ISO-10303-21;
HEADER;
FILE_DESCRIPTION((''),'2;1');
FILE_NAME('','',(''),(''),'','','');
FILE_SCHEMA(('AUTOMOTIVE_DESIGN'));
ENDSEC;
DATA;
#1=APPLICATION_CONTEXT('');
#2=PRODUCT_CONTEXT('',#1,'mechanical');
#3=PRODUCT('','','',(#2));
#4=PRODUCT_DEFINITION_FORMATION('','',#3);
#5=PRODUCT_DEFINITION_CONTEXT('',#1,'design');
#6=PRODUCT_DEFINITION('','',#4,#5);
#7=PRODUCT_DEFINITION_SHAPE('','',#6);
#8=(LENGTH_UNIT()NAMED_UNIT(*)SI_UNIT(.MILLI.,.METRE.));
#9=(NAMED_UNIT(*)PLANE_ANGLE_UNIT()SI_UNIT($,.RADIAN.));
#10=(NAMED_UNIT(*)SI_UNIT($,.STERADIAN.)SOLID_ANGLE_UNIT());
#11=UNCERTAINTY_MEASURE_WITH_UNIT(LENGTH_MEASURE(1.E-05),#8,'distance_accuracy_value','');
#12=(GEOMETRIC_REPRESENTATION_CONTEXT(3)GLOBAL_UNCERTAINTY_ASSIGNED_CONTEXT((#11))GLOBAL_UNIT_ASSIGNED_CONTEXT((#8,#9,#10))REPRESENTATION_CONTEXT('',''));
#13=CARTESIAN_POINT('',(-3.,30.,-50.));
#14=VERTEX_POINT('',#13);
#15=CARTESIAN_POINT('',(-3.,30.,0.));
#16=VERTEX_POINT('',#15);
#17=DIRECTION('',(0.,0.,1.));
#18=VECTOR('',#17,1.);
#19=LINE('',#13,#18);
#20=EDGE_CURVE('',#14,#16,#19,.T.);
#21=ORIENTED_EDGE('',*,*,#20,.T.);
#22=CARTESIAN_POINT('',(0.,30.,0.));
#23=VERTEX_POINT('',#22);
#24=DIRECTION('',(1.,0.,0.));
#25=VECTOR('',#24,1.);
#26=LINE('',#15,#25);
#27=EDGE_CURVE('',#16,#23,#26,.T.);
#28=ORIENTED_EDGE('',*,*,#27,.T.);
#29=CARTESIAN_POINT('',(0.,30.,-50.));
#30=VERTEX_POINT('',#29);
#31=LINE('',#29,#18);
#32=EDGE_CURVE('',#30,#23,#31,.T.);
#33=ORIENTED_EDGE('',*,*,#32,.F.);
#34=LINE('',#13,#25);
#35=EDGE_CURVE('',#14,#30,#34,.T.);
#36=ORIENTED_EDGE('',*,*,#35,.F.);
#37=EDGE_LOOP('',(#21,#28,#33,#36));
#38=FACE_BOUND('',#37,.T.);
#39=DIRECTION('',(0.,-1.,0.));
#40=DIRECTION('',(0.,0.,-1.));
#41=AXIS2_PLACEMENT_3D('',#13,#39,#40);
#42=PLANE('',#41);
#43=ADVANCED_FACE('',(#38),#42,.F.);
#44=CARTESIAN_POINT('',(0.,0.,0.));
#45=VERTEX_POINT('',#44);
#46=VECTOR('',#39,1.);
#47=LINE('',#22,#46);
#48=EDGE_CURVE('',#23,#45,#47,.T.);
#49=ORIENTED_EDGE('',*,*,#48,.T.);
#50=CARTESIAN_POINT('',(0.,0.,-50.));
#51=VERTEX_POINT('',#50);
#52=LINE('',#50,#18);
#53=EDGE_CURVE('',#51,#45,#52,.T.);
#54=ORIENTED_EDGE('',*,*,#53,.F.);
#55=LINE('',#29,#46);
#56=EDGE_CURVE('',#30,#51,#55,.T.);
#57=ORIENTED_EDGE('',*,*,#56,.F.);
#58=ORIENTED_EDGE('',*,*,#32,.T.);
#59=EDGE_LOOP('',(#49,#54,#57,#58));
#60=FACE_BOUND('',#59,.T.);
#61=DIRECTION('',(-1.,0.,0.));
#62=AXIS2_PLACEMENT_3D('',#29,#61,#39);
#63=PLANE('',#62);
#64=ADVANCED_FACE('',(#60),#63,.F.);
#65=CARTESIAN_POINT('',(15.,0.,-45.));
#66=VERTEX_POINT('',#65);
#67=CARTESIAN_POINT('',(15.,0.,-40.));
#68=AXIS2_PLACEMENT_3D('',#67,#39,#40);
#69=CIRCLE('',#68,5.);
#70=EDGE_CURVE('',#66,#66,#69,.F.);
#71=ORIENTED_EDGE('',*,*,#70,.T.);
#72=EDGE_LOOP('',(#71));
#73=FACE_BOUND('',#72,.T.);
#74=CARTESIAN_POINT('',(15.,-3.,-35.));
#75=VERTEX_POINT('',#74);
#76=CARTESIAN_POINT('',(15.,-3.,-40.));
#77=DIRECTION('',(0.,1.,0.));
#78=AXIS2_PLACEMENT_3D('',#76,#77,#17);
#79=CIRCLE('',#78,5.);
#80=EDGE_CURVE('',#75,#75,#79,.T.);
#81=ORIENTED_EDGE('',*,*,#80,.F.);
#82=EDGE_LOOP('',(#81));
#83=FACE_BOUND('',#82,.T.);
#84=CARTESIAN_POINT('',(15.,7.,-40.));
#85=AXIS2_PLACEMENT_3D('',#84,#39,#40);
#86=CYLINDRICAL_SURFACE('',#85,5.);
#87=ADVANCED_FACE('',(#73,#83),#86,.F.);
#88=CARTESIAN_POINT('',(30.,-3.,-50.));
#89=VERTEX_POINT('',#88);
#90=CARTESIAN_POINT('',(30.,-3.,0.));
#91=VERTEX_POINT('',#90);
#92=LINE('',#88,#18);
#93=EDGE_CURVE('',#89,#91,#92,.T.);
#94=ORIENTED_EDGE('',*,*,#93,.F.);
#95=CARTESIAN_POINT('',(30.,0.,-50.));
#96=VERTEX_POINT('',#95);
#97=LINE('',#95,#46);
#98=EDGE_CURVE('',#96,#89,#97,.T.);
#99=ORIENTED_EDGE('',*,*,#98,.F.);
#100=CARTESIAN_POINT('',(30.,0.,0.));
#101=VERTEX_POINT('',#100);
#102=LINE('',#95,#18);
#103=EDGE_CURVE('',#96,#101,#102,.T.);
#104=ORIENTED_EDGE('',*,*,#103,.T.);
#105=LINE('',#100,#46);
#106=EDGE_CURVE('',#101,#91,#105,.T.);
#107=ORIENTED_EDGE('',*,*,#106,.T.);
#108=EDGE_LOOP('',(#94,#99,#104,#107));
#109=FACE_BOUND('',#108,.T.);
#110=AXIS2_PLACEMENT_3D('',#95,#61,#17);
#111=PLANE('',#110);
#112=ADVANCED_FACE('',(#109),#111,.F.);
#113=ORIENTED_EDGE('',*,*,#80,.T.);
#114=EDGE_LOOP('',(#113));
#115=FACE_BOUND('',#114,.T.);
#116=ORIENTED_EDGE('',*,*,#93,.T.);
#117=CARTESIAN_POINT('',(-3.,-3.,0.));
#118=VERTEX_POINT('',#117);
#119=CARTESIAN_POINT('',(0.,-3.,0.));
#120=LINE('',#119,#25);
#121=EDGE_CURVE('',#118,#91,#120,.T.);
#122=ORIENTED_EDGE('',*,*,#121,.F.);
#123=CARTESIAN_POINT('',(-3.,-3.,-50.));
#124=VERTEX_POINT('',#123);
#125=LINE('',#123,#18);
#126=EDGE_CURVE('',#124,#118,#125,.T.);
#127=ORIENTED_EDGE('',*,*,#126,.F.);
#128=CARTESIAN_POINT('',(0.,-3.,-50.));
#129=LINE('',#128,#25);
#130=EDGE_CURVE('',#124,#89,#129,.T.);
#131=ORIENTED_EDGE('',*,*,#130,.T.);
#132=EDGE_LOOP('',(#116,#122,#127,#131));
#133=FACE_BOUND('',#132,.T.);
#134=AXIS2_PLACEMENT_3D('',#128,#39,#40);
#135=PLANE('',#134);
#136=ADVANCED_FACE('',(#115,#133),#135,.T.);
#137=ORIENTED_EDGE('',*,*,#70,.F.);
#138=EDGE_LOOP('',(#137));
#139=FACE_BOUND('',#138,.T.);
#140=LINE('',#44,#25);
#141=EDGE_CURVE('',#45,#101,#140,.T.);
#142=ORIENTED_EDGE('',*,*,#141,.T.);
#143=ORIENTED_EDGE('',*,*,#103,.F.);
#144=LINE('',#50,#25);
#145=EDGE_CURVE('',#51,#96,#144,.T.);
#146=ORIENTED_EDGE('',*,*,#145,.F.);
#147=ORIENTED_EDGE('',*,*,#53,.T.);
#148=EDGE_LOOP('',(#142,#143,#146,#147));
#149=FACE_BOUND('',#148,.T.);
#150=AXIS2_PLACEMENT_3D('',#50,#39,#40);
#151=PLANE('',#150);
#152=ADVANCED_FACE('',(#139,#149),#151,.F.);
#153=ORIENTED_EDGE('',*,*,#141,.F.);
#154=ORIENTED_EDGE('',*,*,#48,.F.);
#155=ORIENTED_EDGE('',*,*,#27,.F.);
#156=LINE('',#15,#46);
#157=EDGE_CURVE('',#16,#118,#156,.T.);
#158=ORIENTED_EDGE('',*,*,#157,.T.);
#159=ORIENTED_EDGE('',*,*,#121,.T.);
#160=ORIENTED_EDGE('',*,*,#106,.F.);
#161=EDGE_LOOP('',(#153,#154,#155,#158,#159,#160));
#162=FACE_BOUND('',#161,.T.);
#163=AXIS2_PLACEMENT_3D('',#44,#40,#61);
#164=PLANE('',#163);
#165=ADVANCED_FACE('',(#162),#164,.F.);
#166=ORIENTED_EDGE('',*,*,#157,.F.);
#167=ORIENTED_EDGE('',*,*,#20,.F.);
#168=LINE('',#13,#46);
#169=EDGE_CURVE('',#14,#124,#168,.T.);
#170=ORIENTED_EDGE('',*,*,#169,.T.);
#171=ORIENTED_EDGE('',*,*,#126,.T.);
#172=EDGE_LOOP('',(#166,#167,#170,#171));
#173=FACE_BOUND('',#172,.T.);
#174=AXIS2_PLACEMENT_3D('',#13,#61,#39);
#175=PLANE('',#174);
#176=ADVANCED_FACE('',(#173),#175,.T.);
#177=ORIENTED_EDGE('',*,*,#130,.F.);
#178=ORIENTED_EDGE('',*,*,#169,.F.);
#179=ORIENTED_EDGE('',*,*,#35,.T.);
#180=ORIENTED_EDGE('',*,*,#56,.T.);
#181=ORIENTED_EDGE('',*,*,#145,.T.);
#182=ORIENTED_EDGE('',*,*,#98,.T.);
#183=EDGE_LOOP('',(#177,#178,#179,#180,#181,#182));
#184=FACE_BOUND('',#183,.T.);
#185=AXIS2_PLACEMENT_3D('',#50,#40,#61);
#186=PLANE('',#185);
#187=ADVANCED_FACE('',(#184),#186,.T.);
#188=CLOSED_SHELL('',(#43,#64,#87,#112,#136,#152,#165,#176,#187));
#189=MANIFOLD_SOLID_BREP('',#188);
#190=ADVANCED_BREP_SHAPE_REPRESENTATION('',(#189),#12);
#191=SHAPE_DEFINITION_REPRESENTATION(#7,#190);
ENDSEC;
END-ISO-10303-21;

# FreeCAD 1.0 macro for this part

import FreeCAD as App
import Part
import Sketcher

V = App.Vector


def add_polygon(sketch, points):
    """Adds a closed chain of lines whose ends are joined by coincident constraints."""
    first, n = sketch.GeometryCount, len(points)
    for a, b in zip(points, points[1:] + points[:1]):
        sketch.addGeometry(Part.LineSegment(App.Vector(*a, 0), App.Vector(*b, 0)), False)
    for i in range(n):
        sketch.addConstraint(Sketcher.Constraint("Coincident", first + i, 2, first + (i + 1) % n, 1))

doc = App.newDocument("Part")
params = doc.addObject("Spreadsheet::Sheet", "Params")
for row, (alias, value) in enumerate([
    ("sketch1_width", "3 mm"),
    ("sketch1_width2", "33 mm"),
    ("pad1_length", "50 mm"),
    ("sketch2_diameter", "10 mm"),
    ("pocket1_length", "10 mm"),
], start=1):
    params.set(f"A{row}", alias)
    params.set(f"B{row}", "=" + value)
    params.setAlias(f"B{row}", alias)

body = doc.addObject("PartDesign::Body", "Body")

# Sketch on XY plane
sketch1 = body.newObject("Sketcher::SketchObject", "Sketch")
sketch1.AttachmentSupport = (doc.getObject("XY_Plane"), [""])
sketch1.MapMode = "FlatFace"
add_polygon(sketch1, [(0, 0), (0, 30), (-3, 30), (-3, -3), (30, -3), (30, 0)])  # lines 0-5
sketch1.addConstraint(Sketcher.Constraint("Vertical", 0))
sketch1.addConstraint(Sketcher.Constraint("Horizontal", 1))
sketch1.addConstraint(Sketcher.Constraint("Vertical", 2))
sketch1.addConstraint(Sketcher.Constraint("Horizontal", 3))
sketch1.addConstraint(Sketcher.Constraint("Vertical", 4))
sketch1.addConstraint(Sketcher.Constraint("Horizontal", 5))
sketch1.addConstraint(Sketcher.Constraint("Coincident", 5, 2, -1, 1))
sketch1.addConstraint(Sketcher.Constraint("Equal", 5, 0))
sketch1.addConstraint(Sketcher.Constraint("Equal", 3, 2))
sketch1.addConstraint(Sketcher.Constraint("DistanceX", 1, 2, 1, 1, 3.0))
sketch1.addConstraint(Sketcher.Constraint("DistanceX", 3, 1, 3, 2, 33.0))
sketch1.setExpression("Constraints[15]", "Params.sketch1_width")
sketch1.setExpression("Constraints[16]", "Params.sketch1_width2")
pad1 = body.newObject("PartDesign::Pad", "Pad")
pad1.Profile = sketch1
pad1.setExpression("Length", "Params.pad1_length")
pad1.Reversed = True

# Sketch on XZ plane
sketch2 = body.newObject("Sketcher::SketchObject", "Sketch001")
sketch2.AttachmentSupport = (doc.getObject("XZ_Plane"), [""])
sketch2.MapMode = "FlatFace"
sketch2.AttachmentOffset = App.Placement(V(0, 0, 3), App.Rotation())
sketch2.addGeometry(Part.Circle(V(15, -40, 0), V(0, 0, 1), 5), False)
sketch2.addConstraint(Sketcher.Constraint("Diameter", 0, 10.0))
sketch2.addConstraint(Sketcher.Constraint("DistanceX", -1, 1, 0, 3, 15.0))
sketch2.addConstraint(Sketcher.Constraint("DistanceY", 0, 3, -1, 1, 40.0))
sketch2.setExpression("Constraints[0]", "Params.sketch2_diameter")
pocket1 = body.newObject("PartDesign::Pocket", "Pocket")
pocket1.Profile = sketch2
pocket1.setExpression("Length", "Params.pocket1_length")

doc.recompute()
